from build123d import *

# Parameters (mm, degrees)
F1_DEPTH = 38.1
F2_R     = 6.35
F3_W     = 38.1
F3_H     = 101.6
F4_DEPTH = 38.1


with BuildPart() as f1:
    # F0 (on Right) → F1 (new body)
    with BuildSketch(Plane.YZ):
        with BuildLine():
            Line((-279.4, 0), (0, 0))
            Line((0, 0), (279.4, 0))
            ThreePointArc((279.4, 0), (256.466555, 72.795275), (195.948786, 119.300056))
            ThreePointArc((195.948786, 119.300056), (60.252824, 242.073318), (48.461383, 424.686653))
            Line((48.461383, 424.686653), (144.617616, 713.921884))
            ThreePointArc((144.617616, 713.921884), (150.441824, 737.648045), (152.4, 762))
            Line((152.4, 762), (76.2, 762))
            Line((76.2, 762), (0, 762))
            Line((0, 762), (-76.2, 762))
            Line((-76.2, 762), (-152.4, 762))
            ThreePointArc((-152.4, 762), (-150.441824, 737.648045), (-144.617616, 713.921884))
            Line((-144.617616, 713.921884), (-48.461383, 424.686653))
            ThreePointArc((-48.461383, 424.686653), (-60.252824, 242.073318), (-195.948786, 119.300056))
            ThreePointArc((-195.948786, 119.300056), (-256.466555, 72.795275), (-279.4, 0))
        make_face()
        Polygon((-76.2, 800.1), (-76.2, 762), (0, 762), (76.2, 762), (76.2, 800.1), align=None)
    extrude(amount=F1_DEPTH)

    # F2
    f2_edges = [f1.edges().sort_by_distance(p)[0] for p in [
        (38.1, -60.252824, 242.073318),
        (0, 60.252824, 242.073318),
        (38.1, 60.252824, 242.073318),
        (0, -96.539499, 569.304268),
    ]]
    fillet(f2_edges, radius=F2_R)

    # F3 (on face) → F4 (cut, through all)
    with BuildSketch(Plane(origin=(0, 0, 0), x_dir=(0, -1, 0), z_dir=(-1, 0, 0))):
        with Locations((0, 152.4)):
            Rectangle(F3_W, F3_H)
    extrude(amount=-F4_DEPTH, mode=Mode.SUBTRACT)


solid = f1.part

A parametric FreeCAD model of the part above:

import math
import FreeCAD as App
import Part
import Sketcher
from FreeCAD import Vector
Q = App.Units.Quantity


def edges_at(feature, points):
    """Names of the edges that pass closest to the given points."""
    edges = feature.Shape.Edges
    near = lambda p: min(range(len(edges)), key=lambda i: edges[i].distToShape(Part.Vertex(*p))[0])
    return sorted({f"Edge{near(p) + 1}" for p in points})

doc = App.newDocument("Part")
body = doc.addObject("PartDesign::Body", "Body")

sketch1 = doc.addObject("Sketcher::SketchObject", "Sketch")
body.addObject(sketch1)
sketch1.AttachmentSupport = (doc.YZ_Plane, [""])
sketch1.MapMode = "FlatFace"
sketch1.addGeometry([
    Part.LineSegment(Vector(-279.4, 0, 0), Vector(279.4, 0, 0)),
    Part.ArcOfCircle(Part.Circle(Vector(152.399997, -0.000001, 0), Vector(0, 0, 1), 127.000003), math.radians(0.000001), math.radians(69.946109)),
    Part.ArcOfCircle(Part.Circle(Vector(279.4, 347.911126, 0), Vector(0, 0, 1), 243.36624), math.radians(161.610617), math.radians(249.94611)),
    Part.LineSegment(Vector(48.461383, 424.686653, 0), Vector(144.617616, 713.921884, 0)),
    Part.ArcOfCircle(Part.Circle(Vector(0.000018, 761.999996, 0), Vector(0, 0, 1), 152.399982), math.radians(-18.389384), math.radians(0.000001)),
    Part.LineSegment(Vector(152.4, 762, 0), Vector(76.2, 762, 0)),
    Part.LineSegment(Vector(76.2, 762, 0), Vector(76.2, 800.1, 0)),
    Part.LineSegment(Vector(76.2, 800.1, 0), Vector(-76.2, 800.1, 0)),
    Part.LineSegment(Vector(-76.2, 800.1, 0), Vector(-76.2, 762, 0)),
    Part.LineSegment(Vector(-76.2, 762, 0), Vector(-152.4, 762, 0)),
    Part.ArcOfCircle(Part.Circle(Vector(-0.000018, 761.999996, 0), Vector(0, 0, 1), 152.399982), math.radians(179.999999), math.radians(198.389384)),
    Part.LineSegment(Vector(-144.617616, 713.921884, 0), Vector(-48.461383, 424.686653, 0)),
    Part.ArcOfCircle(Part.Circle(Vector(-279.4, 347.911126, 0), Vector(0, 0, 1), 243.36624), math.radians(-69.94611), math.radians(18.389383)),
    Part.ArcOfCircle(Part.Circle(Vector(-152.399997, -0.000001, 0), Vector(0, 0, 1), 127.000003), math.radians(110.053891), math.radians(179.999999)),
], False)
sketch1.addConstraint([
    Sketcher.Constraint("Coincident", 0, 2, 1, 1),
    Sketcher.Constraint("Tangent", 1, 2, 2, 2),
    Sketcher.Constraint("Tangent", 2, 1, 3, 1),
    Sketcher.Constraint("Tangent", 3, 2, 4, 1),
    Sketcher.Constraint("Coincident", 4, 2, 5, 1),
    Sketcher.Constraint("Coincident", 5, 2, 6, 1),
    Sketcher.Constraint("Coincident", 6, 2, 7, 1),
    Sketcher.Constraint("Coincident", 7, 2, 8, 1),
    Sketcher.Constraint("Coincident", 8, 2, 9, 1),
    Sketcher.Constraint("Coincident", 9, 2, 10, 1),
    Sketcher.Constraint("Tangent", 10, 2, 11, 1),
    Sketcher.Constraint("Tangent", 11, 2, 12, 2),
    Sketcher.Constraint("Tangent", 12, 1, 13, 1),
    Sketcher.Constraint("Coincident", 13, 2, 0, 1),
    Sketcher.Constraint("Horizontal", 0),
    Sketcher.Constraint("Horizontal", 5),
    Sketcher.Constraint("Vertical", 6),
    Sketcher.Constraint("Horizontal", 7),
    Sketcher.Constraint("Vertical", 8),
    Sketcher.Constraint("Horizontal", 9),
    Sketcher.Constraint("Equal", 4, 10),
    Sketcher.Constraint("Equal", 2, 12),
    Sketcher.Constraint("Equal", 1, 13),
    Sketcher.Constraint("Symmetric", 1, 3, 13, 3, -1, 1),
    Sketcher.Constraint("Symmetric", 4, 3, 10, 3, -2),
    Sketcher.Constraint("Symmetric", 2, 3, 12, 3, -2),
    Sketcher.Constraint("Symmetric", 5, 2, 8, 2, -2),
    Sketcher.Constraint("PointOnObject", 0, 2, -1),
    Sketcher.Constraint("Vertical", 2, 3, 0, 2),
    Sketcher.Constraint("Radius", 1, Q("5.0000001 in")),
    Sketcher.Constraint("DistanceX", 0, 1, 0, 2, Q("22 in")),
    Sketcher.Constraint("DistanceX", 5, 2, 5, 1, Q("3 in")),
    Sketcher.Constraint("DistanceX", 7, 2, 7, 1, Q("6 in")),
    Sketcher.Constraint("Distance", 3, Q("12 in")),
    Sketcher.Constraint("DistanceY", 6, 1, 6, 2, Q("1.5 in")),
    Sketcher.Constraint("DistanceY", -1, 1, 4, 3, Q("29.9999998 in")),
    Sketcher.Constraint("DistanceY", -1, 1, 4, 2, Q("30 in")),
    Sketcher.Constraint("Radius", 2, Q("243.36624 mm")),
])
pad1 = doc.addObject("PartDesign::Pad", "Pad")
body.addObject(pad1)
pad1.Profile = sketch1
pad1.Length = Q("1.5 in")
doc.recompute()

fillet = doc.addObject("PartDesign::Fillet", "Fillet")
body.addObject(fillet)
fillet.Base = (pad1, edges_at(pad1, [
    (38.1, -60.253, 242.073),
    (0, 60.253, 242.073),
    (38.1, 60.253, 242.073),
    (0, -96.539, 569.304),
]))
fillet.Radius = Q("0.25 in")

sketch2 = doc.addObject("Sketcher::SketchObject", "Sketch001")
body.addObject(sketch2)
sketch2.AttachmentSupport = (doc.YZ_Plane, [""])
sketch2.MapMode = "FlatFace"
sketch2.addGeometry([
    Part.LineSegment(Vector(19.05, 203.2, 0), Vector(19.05, 101.6, 0)),
    Part.LineSegment(Vector(19.05, 101.6, 0), Vector(-19.05, 101.6, 0)),
    Part.LineSegment(Vector(-19.05, 101.6, 0), Vector(-19.05, 203.2, 0)),
    Part.LineSegment(Vector(-19.05, 203.2, 0), Vector(19.05, 203.2, 0)),
], False)
sketch2.addConstraint([
    Sketcher.Constraint("Coincident", 0, 2, 1, 1),
    Sketcher.Constraint("Coincident", 1, 2, 2, 1),
    Sketcher.Constraint("Coincident", 2, 2, 3, 1),
    Sketcher.Constraint("Coincident", 3, 2, 0, 1),
    Sketcher.Constraint("Vertical", 0),
    Sketcher.Constraint("Horizontal", 1),
    Sketcher.Constraint("Vertical", 2),
    Sketcher.Constraint("Horizontal", 3),
    Sketcher.Constraint("DistanceY", 0, 2, 0, 1, Q("4 in")),
    Sketcher.Constraint("DistanceX", 1, 2, 1, 1, Q("1.5 in")),
    Sketcher.Constraint("DistanceY", -1, 1, 0, 2, Q("4 in")),
    Sketcher.Constraint("DistanceX", -1, 1, 0, 2, Q("0.75 in")),
])
pocket1 = doc.addObject("PartDesign::Pocket", "Pocket")
body.addObject(pocket1)
pocket1.Profile = sketch2
pocket1.Type = "ThroughAll"
pocket1.Reversed = True

doc.recompute()
